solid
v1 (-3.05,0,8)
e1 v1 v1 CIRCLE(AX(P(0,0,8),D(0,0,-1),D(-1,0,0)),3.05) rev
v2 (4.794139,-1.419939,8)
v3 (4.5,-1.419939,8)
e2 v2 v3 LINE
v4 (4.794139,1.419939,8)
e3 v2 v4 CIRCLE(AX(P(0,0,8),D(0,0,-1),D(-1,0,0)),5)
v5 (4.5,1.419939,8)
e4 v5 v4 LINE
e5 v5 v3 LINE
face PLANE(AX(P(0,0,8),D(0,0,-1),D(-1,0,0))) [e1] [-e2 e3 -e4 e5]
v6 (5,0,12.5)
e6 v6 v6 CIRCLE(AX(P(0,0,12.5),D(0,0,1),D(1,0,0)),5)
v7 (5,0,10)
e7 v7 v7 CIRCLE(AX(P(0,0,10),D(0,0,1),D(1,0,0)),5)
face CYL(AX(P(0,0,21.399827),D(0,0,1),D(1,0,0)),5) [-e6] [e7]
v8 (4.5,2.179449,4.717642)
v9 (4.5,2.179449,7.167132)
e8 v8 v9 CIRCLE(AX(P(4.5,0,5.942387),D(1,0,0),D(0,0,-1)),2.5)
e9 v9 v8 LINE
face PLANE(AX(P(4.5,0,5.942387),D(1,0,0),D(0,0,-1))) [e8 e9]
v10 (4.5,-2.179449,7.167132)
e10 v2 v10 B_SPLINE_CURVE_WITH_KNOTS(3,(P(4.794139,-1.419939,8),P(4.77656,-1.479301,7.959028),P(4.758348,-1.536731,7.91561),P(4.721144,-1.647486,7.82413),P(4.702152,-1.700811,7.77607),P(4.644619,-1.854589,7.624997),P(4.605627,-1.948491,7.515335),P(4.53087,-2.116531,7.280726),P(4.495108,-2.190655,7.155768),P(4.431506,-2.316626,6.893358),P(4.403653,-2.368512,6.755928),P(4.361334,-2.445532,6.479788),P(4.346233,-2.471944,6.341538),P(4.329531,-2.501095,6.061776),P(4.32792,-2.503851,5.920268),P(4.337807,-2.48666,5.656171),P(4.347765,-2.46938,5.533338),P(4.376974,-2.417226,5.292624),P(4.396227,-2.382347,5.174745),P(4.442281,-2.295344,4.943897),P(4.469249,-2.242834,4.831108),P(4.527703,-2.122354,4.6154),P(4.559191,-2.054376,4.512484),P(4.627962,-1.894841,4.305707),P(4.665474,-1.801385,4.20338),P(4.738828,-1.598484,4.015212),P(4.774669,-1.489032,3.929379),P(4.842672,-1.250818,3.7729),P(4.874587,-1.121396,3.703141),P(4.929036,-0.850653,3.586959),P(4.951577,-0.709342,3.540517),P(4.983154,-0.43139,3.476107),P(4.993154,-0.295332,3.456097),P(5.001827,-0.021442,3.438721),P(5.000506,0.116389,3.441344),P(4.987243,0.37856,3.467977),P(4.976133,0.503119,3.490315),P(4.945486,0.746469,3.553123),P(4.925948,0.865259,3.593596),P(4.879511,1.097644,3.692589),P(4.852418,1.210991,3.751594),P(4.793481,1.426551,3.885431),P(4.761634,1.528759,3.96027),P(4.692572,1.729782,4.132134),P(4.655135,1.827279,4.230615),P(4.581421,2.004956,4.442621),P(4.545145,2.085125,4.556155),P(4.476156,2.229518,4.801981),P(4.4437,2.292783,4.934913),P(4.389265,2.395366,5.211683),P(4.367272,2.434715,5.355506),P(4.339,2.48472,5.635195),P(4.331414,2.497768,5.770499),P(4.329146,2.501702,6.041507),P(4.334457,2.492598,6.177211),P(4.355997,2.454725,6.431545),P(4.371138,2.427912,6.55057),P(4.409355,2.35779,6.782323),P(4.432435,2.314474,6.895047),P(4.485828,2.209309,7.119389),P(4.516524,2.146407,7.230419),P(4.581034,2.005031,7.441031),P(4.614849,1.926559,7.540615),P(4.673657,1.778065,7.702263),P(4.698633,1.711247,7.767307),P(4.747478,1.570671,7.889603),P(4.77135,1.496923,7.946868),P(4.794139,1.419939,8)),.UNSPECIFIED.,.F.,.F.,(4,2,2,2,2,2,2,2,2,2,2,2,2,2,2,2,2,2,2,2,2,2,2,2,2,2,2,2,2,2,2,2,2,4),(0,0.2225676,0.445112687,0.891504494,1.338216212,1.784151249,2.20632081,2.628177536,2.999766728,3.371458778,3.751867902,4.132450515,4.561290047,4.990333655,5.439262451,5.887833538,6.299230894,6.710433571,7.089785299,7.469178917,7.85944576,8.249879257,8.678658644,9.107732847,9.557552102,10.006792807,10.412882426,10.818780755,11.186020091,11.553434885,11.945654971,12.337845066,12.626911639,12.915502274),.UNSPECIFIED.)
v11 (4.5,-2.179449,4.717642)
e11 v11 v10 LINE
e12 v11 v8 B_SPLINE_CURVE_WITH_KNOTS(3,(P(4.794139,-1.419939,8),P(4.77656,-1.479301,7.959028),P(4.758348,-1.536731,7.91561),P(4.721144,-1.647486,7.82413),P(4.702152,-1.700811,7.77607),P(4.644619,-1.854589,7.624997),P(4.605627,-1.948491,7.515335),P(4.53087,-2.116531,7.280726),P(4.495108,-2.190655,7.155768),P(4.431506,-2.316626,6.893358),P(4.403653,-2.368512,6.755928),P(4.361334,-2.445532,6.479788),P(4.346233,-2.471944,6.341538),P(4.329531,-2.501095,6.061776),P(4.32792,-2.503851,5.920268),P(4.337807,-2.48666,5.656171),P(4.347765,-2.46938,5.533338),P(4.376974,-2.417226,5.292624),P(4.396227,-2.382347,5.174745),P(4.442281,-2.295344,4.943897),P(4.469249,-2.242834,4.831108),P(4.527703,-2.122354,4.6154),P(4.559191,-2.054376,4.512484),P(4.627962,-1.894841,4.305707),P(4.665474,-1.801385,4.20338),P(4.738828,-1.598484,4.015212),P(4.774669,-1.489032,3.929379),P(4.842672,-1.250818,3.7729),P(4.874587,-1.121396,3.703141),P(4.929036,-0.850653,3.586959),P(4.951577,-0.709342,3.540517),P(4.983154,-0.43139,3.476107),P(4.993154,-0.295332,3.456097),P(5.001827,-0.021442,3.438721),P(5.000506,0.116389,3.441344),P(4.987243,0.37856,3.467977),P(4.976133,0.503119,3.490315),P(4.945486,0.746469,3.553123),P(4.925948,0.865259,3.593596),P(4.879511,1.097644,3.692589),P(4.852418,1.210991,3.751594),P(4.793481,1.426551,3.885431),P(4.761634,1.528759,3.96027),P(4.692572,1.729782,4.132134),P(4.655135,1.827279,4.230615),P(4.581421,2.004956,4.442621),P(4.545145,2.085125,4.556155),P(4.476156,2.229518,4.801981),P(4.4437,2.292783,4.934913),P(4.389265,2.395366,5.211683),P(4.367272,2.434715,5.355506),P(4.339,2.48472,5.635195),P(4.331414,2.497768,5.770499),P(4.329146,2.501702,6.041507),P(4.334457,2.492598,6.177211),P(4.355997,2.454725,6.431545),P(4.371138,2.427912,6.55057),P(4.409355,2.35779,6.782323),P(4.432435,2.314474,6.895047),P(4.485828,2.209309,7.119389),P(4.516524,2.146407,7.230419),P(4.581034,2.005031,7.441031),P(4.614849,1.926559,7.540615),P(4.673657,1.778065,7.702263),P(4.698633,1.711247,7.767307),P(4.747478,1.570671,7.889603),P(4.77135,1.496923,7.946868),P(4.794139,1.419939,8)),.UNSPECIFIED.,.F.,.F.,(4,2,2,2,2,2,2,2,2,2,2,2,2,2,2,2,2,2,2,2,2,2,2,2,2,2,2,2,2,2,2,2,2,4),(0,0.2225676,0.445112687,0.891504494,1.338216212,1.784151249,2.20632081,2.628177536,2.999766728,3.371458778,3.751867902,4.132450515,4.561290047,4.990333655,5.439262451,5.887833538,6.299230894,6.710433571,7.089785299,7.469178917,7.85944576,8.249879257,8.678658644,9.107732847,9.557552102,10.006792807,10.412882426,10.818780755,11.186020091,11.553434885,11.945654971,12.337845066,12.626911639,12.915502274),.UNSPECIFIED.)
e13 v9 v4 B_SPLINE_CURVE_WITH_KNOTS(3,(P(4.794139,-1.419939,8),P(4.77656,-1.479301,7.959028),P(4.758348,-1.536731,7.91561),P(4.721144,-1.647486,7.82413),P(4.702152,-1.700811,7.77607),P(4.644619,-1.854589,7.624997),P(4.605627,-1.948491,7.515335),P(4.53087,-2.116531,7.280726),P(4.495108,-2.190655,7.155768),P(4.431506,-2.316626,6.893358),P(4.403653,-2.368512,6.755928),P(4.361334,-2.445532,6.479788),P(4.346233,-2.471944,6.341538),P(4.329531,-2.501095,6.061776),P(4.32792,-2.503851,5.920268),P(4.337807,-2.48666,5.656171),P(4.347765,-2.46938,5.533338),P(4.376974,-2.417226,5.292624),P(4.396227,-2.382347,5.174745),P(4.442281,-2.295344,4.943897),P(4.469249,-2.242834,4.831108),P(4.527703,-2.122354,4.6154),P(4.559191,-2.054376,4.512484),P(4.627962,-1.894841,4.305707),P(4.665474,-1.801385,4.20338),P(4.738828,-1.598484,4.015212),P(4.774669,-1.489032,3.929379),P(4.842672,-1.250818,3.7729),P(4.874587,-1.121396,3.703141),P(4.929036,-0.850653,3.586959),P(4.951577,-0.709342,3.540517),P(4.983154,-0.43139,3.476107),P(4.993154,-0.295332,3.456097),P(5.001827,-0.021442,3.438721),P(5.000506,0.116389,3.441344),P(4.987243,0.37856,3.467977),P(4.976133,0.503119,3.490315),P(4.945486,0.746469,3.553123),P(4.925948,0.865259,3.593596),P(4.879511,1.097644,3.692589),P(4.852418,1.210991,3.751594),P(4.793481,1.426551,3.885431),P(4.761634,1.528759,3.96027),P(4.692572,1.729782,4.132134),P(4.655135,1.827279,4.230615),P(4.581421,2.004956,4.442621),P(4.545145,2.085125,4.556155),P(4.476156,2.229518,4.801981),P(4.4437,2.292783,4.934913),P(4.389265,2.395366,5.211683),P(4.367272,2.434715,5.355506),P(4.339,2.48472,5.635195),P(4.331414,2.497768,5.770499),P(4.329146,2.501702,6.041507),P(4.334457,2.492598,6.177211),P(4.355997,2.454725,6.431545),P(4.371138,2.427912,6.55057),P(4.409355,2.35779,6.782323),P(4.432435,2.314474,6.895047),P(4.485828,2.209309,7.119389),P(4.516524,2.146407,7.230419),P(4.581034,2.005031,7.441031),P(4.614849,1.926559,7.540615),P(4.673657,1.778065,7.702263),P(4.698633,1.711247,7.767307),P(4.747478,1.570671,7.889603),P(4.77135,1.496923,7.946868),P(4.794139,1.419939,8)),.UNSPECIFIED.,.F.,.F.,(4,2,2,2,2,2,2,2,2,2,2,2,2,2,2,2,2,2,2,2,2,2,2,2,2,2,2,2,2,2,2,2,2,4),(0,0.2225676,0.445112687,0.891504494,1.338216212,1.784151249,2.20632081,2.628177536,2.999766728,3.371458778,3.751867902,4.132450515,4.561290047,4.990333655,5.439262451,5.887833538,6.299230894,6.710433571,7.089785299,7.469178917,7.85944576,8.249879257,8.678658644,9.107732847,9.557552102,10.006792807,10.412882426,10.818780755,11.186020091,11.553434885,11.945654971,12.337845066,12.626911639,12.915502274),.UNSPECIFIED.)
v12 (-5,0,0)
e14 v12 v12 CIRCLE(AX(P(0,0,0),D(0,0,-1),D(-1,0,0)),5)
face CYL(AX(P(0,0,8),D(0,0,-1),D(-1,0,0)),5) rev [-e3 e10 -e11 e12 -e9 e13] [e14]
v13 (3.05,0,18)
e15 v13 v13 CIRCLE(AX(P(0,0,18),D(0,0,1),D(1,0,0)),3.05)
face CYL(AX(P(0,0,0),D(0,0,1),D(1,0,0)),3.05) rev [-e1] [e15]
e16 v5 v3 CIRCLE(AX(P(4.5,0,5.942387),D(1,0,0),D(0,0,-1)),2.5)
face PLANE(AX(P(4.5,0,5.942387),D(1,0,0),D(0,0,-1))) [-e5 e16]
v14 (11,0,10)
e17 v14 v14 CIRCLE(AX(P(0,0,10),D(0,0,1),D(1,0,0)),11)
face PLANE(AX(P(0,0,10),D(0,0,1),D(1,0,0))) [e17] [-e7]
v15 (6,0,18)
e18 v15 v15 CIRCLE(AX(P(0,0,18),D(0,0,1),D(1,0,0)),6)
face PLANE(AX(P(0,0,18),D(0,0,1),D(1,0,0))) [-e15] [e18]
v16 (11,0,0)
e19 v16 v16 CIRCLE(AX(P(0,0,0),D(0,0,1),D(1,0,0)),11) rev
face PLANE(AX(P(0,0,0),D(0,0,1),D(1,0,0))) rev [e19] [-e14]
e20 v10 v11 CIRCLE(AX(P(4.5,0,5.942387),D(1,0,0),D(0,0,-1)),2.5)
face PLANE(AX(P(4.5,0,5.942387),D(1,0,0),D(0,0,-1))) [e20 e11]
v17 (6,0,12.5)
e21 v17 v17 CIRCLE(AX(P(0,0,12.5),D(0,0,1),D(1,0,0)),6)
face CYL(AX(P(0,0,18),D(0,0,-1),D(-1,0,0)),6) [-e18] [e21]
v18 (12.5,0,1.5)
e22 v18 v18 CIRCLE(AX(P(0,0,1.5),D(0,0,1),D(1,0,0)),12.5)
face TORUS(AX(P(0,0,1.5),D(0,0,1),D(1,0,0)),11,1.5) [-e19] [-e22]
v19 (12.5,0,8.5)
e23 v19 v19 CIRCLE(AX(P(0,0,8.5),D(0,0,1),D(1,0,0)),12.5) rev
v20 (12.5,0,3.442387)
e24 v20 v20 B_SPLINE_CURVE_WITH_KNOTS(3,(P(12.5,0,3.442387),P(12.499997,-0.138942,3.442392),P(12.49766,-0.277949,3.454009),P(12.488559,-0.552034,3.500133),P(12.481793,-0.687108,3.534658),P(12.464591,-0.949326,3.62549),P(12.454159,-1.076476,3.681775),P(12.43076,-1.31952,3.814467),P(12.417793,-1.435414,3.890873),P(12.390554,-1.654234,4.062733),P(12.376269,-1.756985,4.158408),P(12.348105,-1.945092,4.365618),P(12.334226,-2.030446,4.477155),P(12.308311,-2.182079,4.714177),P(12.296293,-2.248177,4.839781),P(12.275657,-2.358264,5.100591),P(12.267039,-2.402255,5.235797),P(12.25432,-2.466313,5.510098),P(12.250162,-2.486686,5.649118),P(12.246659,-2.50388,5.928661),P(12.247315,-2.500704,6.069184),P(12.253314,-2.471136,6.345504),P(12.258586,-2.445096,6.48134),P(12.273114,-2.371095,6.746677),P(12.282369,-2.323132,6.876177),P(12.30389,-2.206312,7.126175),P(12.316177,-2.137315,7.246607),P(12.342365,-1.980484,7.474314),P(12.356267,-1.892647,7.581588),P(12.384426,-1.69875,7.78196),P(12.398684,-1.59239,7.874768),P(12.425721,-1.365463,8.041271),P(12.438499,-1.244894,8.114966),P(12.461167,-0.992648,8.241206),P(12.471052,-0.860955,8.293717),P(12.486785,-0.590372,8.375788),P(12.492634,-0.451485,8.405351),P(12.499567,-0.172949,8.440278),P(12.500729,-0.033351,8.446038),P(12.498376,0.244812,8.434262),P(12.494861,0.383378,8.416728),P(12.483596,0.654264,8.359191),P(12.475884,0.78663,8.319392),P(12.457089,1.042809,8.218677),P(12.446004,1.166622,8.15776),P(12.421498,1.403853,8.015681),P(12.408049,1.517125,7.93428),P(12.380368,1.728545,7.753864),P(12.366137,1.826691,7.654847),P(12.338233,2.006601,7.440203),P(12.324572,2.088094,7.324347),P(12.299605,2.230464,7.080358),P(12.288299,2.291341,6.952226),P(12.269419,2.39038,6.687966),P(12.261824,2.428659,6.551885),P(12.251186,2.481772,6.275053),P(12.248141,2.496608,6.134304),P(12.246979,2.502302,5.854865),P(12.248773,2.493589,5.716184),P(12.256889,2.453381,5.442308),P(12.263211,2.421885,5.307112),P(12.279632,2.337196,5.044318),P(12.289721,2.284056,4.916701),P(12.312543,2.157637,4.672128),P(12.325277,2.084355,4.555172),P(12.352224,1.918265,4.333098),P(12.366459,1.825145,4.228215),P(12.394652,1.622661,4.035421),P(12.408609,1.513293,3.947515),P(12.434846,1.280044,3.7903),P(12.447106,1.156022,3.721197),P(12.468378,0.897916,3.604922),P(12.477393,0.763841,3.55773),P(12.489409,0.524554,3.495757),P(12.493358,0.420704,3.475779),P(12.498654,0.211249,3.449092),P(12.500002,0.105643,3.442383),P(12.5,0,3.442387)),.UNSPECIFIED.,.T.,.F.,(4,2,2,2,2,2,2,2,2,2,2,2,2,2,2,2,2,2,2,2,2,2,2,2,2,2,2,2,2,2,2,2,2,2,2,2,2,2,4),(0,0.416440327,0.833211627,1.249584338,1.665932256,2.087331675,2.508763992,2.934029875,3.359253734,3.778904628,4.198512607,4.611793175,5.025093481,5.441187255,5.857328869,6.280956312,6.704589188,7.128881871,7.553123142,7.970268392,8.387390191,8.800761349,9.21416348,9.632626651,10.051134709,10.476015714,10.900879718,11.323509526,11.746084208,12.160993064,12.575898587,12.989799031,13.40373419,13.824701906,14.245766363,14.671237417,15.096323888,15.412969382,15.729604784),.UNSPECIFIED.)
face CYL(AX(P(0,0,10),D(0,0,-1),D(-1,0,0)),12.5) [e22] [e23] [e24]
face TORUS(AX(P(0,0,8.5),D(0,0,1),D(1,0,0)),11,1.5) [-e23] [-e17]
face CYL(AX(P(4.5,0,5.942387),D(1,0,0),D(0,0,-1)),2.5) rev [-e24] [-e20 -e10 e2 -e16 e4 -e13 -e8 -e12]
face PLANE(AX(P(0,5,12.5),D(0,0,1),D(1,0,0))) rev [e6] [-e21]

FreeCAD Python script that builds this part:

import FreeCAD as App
import Part
import Sketcher

V = App.Vector


def edges_at(feature, points):
    """Names of the edges that pass closest to the given points."""
    edges = feature.Shape.Edges
    near = lambda p: min(range(len(edges)), key=lambda i: edges[i].distToShape(Part.Vertex(*p))[0])
    return sorted({f"Edge{near(p) + 1}" for p in points})

doc = App.newDocument("Part")
body = doc.addObject("PartDesign::Body", "Body")

# Sketch on XY plane
sketch1 = body.newObject("Sketcher::SketchObject", "Sketch")
sketch1.AttachmentSupport = (doc.getObject("XY_Plane"), [""])
sketch1.MapMode = "FlatFace"
sketch1.addGeometry(Part.Circle(V(0, 0, 0), V(0, 0, 1), 12), False)
sketch1.addConstraint([
    Sketcher.Constraint("Coincident", 0, 3, -1, 1),
    Sketcher.Constraint("Diameter", 0, 25.0),
])
pad1 = body.newObject("PartDesign::Pad", "Pad")
pad1.Profile = sketch1
pad1.Length = 10

# Sketch on XY plane
sketch2 = body.newObject("Sketcher::SketchObject", "Sketch001")
sketch2.AttachmentSupport = (doc.getObject("XY_Plane"), [""])
sketch2.MapMode = "FlatFace"
sketch2.AttachmentOffset = App.Placement(V(0, 0, 10), App.Rotation())
sketch2.addGeometry(Part.Circle(V(0, 0, 0), V(0, 0, 1), 6), False)
sketch2.addConstraint([
    Sketcher.Constraint("Coincident", 0, 3, -1, 1),
    Sketcher.Constraint("Diameter", 0, 12.0),
])
pad2 = body.newObject("PartDesign::Pad", "Pad001")
pad2.Profile = sketch2
pad2.Length = 8

# Sketch on XY plane
sketch3 = body.newObject("Sketcher::SketchObject", "Sketch002")
sketch3.AttachmentSupport = (doc.getObject("XY_Plane"), [""])
sketch3.MapMode = "FlatFace"
sketch3.AttachmentOffset = App.Placement(V(0, 0, 18), App.Rotation())
sketch3.addGeometry(Part.Circle(V(0, 0, 0), V(0, 0, 1), 3), False)
sketch3.addConstraint([
    Sketcher.Constraint("Coincident", 0, 3, -1, 1),
    Sketcher.Constraint("Diameter", 0, 6.1),
])
pocket1 = body.newObject("PartDesign::Pocket", "Pocket")
pocket1.Profile = sketch3
pocket1.Type = "ThroughAll"

# Sketch on XY plane
sketch4 = body.newObject("Sketcher::SketchObject", "Sketch003")
sketch4.AttachmentSupport = (doc.getObject("XY_Plane"), [""])
sketch4.MapMode = "FlatFace"
sketch4.addGeometry(Part.Circle(V(0, 0, 0), V(0, 0, 1), 5), False)
sketch4.addConstraint([
    Sketcher.Constraint("Coincident", 0, 3, -1, 1),
    Sketcher.Constraint("Diameter", 0, 10.0),
])
pocket2 = body.newObject("PartDesign::Pocket", "Pocket001")
pocket2.Profile = sketch4
pocket2.Length = 8
pocket2.Reversed = True

# Sketch on YZ plane
sketch5 = body.newObject("Sketcher::SketchObject", "Sketch004")
sketch5.AttachmentSupport = (doc.getObject("YZ_Plane"), [""])
sketch5.MapMode = "FlatFace"
sketch5.addGeometry([
    Part.LineSegment(V(7, 12.5, 0), V(5, 12.5, 0)),
    Part.LineSegment(V(5, 12.5, 0), V(5, 10, 0)),
    Part.LineSegment(V(5, 10, 0), V(7, 10, 0)),
    Part.LineSegment(V(7, 10, 0), V(7, 12.5, 0)),
], False)
sketch5.addConstraint([
    Sketcher.Constraint("Coincident", 0, 2, 1, 1),
    Sketcher.Constraint("Coincident", 1, 2, 2, 1),
    Sketcher.Constraint("Coincident", 2, 2, 3, 1),
    Sketcher.Constraint("Coincident", 3, 2, 0, 1),
    Sketcher.Constraint("Horizontal", 0),
    Sketcher.Constraint("Vertical", 1),
    Sketcher.Constraint("Horizontal", 2),
    Sketcher.Constraint("Vertical", 3),
    Sketcher.Constraint("DistanceX", 0, 2, 0, 1, 2.0),
    Sketcher.Constraint("DistanceY", 1, 2, 1, 1, 2.5),
    Sketcher.Constraint("DistanceX", -1, 1, 0, 2, 5.0),
    Sketcher.Constraint("DistanceY", -1, 1, 1, 2, 10.0),
])
groove = body.newObject("PartDesign::Groove", "Groove")
groove.Profile = sketch5
groove.ReferenceAxis = (sketch5, ["V_Axis"])
groove.Angle = 360
doc.recompute()

fillet = body.newObject("PartDesign::Fillet", "Fillet")
fillet.Base = (groove, edges_at(groove, [(-12.5, 0, 0), (-12.5, 0, 10)]))
fillet.Radius = 1.5

# Sketch on YZ plane
sketch6 = body.newObject("Sketcher::SketchObject", "Sketch005")
sketch6.AttachmentSupport = (doc.getObject("YZ_Plane"), [""])
sketch6.MapMode = "FlatFace"
sketch6.AttachmentOffset = App.Placement(V(0, 0, 12.5), App.Rotation())
sketch6.addGeometry(Part.Circle(V(0, 5.9, 0), V(0, 0, 1), 2.5), False)
sketch6.addConstraint([
    Sketcher.Constraint("PointOnObject", 0, 3, -2),
    Sketcher.Constraint("Diameter", 0, 5.0),
    Sketcher.Constraint("DistanceY", -1, 1, 0, 3, 5.942387),
])
pocket3 = body.newObject("PartDesign::Pocket", "Pocket002")
pocket3.Profile = sketch6
pocket3.Length = 8

doc.recompute()
